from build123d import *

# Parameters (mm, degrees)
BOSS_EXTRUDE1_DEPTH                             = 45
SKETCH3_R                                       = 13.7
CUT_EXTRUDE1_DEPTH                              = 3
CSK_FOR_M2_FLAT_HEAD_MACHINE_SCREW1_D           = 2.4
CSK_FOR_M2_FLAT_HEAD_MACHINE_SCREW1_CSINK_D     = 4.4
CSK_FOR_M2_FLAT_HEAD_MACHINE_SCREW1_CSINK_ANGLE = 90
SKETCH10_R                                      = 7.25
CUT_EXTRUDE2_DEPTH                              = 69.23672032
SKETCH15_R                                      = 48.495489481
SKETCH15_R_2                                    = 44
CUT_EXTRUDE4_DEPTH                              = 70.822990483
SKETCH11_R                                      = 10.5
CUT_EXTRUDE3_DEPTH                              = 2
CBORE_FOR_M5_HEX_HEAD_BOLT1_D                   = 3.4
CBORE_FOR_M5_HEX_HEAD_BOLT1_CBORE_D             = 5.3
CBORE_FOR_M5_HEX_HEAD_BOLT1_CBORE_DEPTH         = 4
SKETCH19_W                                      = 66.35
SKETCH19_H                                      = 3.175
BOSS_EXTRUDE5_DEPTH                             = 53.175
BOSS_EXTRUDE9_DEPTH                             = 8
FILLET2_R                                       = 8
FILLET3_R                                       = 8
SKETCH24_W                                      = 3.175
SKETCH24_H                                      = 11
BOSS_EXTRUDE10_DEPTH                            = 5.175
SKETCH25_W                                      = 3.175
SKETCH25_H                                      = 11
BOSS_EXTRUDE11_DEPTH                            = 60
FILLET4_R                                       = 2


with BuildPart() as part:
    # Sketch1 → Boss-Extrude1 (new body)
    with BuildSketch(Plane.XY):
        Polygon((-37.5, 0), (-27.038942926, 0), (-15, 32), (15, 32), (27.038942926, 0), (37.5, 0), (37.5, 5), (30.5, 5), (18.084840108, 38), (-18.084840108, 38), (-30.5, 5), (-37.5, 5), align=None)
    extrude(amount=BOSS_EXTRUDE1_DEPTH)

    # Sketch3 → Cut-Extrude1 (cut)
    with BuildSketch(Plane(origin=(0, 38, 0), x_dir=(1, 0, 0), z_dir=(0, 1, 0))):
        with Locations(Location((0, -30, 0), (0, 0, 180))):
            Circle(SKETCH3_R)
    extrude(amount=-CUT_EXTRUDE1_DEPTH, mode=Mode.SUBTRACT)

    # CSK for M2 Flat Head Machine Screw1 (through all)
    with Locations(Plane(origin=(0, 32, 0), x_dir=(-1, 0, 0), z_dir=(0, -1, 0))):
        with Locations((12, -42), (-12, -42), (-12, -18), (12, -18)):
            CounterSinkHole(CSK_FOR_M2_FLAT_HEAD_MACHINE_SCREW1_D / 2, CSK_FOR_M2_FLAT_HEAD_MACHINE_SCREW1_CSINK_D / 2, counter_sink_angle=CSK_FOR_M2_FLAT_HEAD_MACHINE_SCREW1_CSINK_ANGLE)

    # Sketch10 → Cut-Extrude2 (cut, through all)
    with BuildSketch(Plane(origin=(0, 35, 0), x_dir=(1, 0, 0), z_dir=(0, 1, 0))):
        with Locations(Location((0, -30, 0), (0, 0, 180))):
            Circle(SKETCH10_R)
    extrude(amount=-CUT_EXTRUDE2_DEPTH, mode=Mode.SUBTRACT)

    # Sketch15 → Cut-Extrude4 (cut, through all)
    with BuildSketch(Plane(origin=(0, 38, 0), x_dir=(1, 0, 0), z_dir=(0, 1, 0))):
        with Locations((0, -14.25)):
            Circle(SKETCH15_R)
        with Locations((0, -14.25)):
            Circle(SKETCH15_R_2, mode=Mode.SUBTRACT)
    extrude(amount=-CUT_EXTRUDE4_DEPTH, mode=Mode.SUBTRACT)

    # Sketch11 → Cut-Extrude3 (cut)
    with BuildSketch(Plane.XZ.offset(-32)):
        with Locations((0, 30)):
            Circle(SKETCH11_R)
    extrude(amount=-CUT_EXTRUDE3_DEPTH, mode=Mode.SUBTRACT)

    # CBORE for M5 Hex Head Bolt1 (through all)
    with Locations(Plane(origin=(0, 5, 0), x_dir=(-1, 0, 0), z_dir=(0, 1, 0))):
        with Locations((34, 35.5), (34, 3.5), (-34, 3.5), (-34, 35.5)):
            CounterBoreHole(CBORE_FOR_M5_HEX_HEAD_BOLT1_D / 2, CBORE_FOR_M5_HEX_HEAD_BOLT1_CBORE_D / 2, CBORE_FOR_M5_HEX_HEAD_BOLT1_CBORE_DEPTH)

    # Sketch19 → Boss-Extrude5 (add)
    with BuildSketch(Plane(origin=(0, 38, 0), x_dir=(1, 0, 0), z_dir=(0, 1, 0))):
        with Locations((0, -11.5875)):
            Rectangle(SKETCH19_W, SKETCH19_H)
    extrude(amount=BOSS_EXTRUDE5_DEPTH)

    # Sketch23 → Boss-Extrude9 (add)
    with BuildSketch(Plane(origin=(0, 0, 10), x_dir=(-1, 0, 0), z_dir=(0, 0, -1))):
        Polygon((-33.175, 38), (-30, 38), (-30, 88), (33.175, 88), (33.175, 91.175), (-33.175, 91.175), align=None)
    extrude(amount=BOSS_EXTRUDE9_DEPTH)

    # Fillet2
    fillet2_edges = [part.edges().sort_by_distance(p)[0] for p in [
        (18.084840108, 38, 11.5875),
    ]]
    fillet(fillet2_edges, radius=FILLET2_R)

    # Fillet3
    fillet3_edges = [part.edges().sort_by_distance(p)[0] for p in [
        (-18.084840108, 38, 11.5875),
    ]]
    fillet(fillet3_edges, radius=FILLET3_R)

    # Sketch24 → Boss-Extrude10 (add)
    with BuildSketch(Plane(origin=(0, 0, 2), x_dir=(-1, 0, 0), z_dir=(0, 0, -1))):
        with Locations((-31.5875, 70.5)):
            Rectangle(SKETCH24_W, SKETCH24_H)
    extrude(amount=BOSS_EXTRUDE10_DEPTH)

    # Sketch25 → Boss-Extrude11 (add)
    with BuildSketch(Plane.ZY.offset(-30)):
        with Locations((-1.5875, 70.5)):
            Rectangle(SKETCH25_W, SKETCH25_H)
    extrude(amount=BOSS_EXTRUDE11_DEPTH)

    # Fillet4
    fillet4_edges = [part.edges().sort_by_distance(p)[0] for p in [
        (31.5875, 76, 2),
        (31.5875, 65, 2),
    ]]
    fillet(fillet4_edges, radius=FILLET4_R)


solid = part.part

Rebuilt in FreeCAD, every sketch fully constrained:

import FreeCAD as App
import Part
import Sketcher

V = App.Vector


def edges_at(feature, points):
    """Names of the edges that pass closest to the given points."""
    edges = feature.Shape.Edges
    near = lambda p: min(range(len(edges)), key=lambda i: edges[i].distToShape(Part.Vertex(*p))[0])
    return sorted({f"Edge{near(p) + 1}" for p in points})

doc = App.newDocument("Part")
body = doc.addObject("PartDesign::Body", "Body")

sketch1 = doc.addObject("Sketcher::SketchObject", "Sketch")
body.addObject(sketch1)
sketch1.AttachmentSupport = (doc.XY_Plane, [""])
sketch1.MapMode = "FlatFace"
sketch1.addGeometry(Part.LineSegment(V(-38, 0, 0), V(-27, 0, 0)), False)
sketch1.addGeometry(Part.LineSegment(V(-27, 0, 0), V(-15, 32, 0)), False)
sketch1.addGeometry(Part.LineSegment(V(-15, 32, 0), V(15, 32, 0)), False)
sketch1.addGeometry(Part.LineSegment(V(15, 32, 0), V(27, 0, 0)), False)
sketch1.addGeometry(Part.LineSegment(V(27, 0, 0), V(38, 0, 0)), False)
sketch1.addGeometry(Part.LineSegment(V(38, 0, 0), V(38, 5, 0)), False)
sketch1.addGeometry(Part.LineSegment(V(38, 5, 0), V(30, 5, 0)), False)
sketch1.addGeometry(Part.LineSegment(V(30, 5, 0), V(18, 38, 0)), False)
sketch1.addGeometry(Part.LineSegment(V(18, 38, 0), V(-18, 38, 0)), False)
sketch1.addGeometry(Part.LineSegment(V(-18, 38, 0), V(-30, 5, 0)), False)
sketch1.addGeometry(Part.LineSegment(V(-30, 5, 0), V(-38, 5, 0)), False)
sketch1.addGeometry(Part.LineSegment(V(-38, 5, 0), V(-38, 0, 0)), False)
sketch1.addConstraint(Sketcher.Constraint("Coincident", 0, 2, 1, 1))
sketch1.addConstraint(Sketcher.Constraint("Coincident", 1, 2, 2, 1))
sketch1.addConstraint(Sketcher.Constraint("Coincident", 2, 2, 3, 1))
sketch1.addConstraint(Sketcher.Constraint("Coincident", 3, 2, 4, 1))
sketch1.addConstraint(Sketcher.Constraint("Coincident", 4, 2, 5, 1))
sketch1.addConstraint(Sketcher.Constraint("Coincident", 5, 2, 6, 1))
sketch1.addConstraint(Sketcher.Constraint("Coincident", 6, 2, 7, 1))
sketch1.addConstraint(Sketcher.Constraint("Coincident", 7, 2, 8, 1))
sketch1.addConstraint(Sketcher.Constraint("Coincident", 8, 2, 9, 1))
sketch1.addConstraint(Sketcher.Constraint("Coincident", 9, 2, 10, 1))
sketch1.addConstraint(Sketcher.Constraint("Coincident", 10, 2, 11, 1))
sketch1.addConstraint(Sketcher.Constraint("Coincident", 11, 2, 0, 1))
sketch1.addConstraint(Sketcher.Constraint("Horizontal", 0))
sketch1.addConstraint(Sketcher.Constraint("Horizontal", 2))
sketch1.addConstraint(Sketcher.Constraint("Horizontal", 4))
sketch1.addConstraint(Sketcher.Constraint("Vertical", 5))
sketch1.addConstraint(Sketcher.Constraint("Horizontal", 6))
sketch1.addConstraint(Sketcher.Constraint("Horizontal", 8))
sketch1.addConstraint(Sketcher.Constraint("Horizontal", 10))
sketch1.addConstraint(Sketcher.Constraint("Vertical", 11))
sketch1.addConstraint(Sketcher.Constraint("Symmetric", 0, 2, 3, 2, -1, 1))
sketch1.addConstraint(Sketcher.Constraint("Symmetric", 6, 2, 9, 2, -2))
sketch1.addConstraint(Sketcher.Constraint("Symmetric", 4, 2, 11, 2, -2))
sketch1.addConstraint(Sketcher.Constraint("Parallel", 3, 7))
sketch1.addConstraint(Sketcher.Constraint("Parallel", 1, 9))
sketch1.addConstraint(Sketcher.Constraint("Equal", 1, 3))
sketch1.addConstraint(Sketcher.Constraint("DistanceX", 2, 1, 2, 2, 30.0))
sketch1.addConstraint(Sketcher.Constraint("DistanceX", 6, 2, 6, 1, 7.0))
sketch1.addConstraint(Sketcher.Constraint("DistanceY", 5, 1, 5, 2, 5.0))
sketch1.addConstraint(Sketcher.Constraint("DistanceY", -1, 1, 1, 2, 32.0))
sketch1.addConstraint(Sketcher.Constraint("DistanceY", -1, 1, 7, 2, 38.0))
sketch1.addConstraint(Sketcher.Constraint("DistanceX", -1, 1, 4, 2, 37.5))
sketch1.addConstraint(Sketcher.Constraint("DistanceX", 8, 2, 8, 1, 36.16968))
pad1 = doc.addObject("PartDesign::Pad", "Pad")
body.addObject(pad1)
pad1.Profile = sketch1
pad1.Length = 45

sketch2 = doc.addObject("Sketcher::SketchObject", "Sketch001")
body.addObject(sketch2)
sketch2.AttachmentSupport = (doc.XZ_Plane, [""])
sketch2.MapMode = "FlatFace"
sketch2.AttachmentOffset = App.Placement(V(0, 0, -38), App.Rotation())
sketch2.addGeometry(Part.Circle(V(0, 30, 0), V(0, 0, 1), 14), False)
sketch2.addConstraint(Sketcher.Constraint("PointOnObject", 0, 3, -2))
sketch2.addConstraint(Sketcher.Constraint("Diameter", 0, 27.4))
sketch2.addConstraint(Sketcher.Constraint("DistanceY", -1, 1, 0, 3, 30.0))
pocket1 = doc.addObject("PartDesign::Pocket", "Pocket")
body.addObject(pocket1)
pocket1.Profile = sketch2
pocket1.Length = 3
pocket1.Reversed = True

sketch3 = doc.addObject("Sketcher::SketchObject", "Sketch002")
body.addObject(sketch3)
sketch3.AttachmentSupport = (doc.XZ_Plane, [""])
sketch3.MapMode = "FlatFace"
sketch3.AttachmentOffset = App.Placement(V(0, 0, -32), App.Rotation())
sketch3.addGeometry(Part.Circle(V(-12, 42, 0), V(0, 0, 1), 1.2), False)
sketch3.addGeometry(Part.Circle(V(12, 42, 0), V(0, 0, 1), 1.2), False)
sketch3.addGeometry(Part.Circle(V(12, 18, 0), V(0, 0, 1), 1.2), False)
sketch3.addGeometry(Part.Circle(V(-12, 18, 0), V(0, 0, 1), 1.2), False)
sketch3.addConstraint(Sketcher.Constraint("Equal", 0, 1))
sketch3.addConstraint(Sketcher.Constraint("Equal", 1, 2))
sketch3.addConstraint(Sketcher.Constraint("Equal", 2, 3))
sketch3.addConstraint(Sketcher.Constraint("Symmetric", 0, 3, 1, 3, -2))
sketch3.addConstraint(Sketcher.Constraint("Symmetric", 2, 3, 3, 3, -2))
sketch3.addConstraint(Sketcher.Constraint("Vertical", 1, 3, 2, 3))
sketch3.addConstraint(Sketcher.Constraint("Diameter", 0, 2.4))
sketch3.addConstraint(Sketcher.Constraint("DistanceX", 0, 3, -1, 1, 12.0))
sketch3.addConstraint(Sketcher.Constraint("DistanceY", -1, 1, 0, 3, 42.0))
sketch3.addConstraint(Sketcher.Constraint("DistanceY", -1, 1, 2, 3, 18.0))
doc.recompute()
hole = doc.addObject("PartDesign::Hole", "Hole")
body.addObject(hole)
hole.Profile = sketch3
hole.ThreadType = "None"
hole.Diameter = 2.4
hole.DepthType = "ThroughAll"
hole.HoleCutType = "Countersink"
hole.HoleCutDiameter = 4.4
hole.HoleCutCountersinkAngle = 90

sketch4 = doc.addObject("Sketcher::SketchObject", "Sketch003")
body.addObject(sketch4)
sketch4.AttachmentSupport = (doc.XZ_Plane, [""])
sketch4.MapMode = "FlatFace"
sketch4.AttachmentOffset = App.Placement(V(0, 0, -35), App.Rotation())
sketch4.addGeometry(Part.Circle(V(0, 30, 0), V(0, 0, 1), 7), False)
sketch4.addConstraint(Sketcher.Constraint("PointOnObject", 0, 3, -2))
sketch4.addConstraint(Sketcher.Constraint("Diameter", 0, 14.5))
sketch4.addConstraint(Sketcher.Constraint("DistanceY", -1, 1, 0, 3, 30.0))
pocket2 = doc.addObject("PartDesign::Pocket", "Pocket001")
body.addObject(pocket2)
pocket2.Profile = sketch4
pocket2.Type = "ThroughAll"
pocket2.Reversed = True

sketch5 = doc.addObject("Sketcher::SketchObject", "Sketch004")
body.addObject(sketch5)
sketch5.AttachmentSupport = (doc.XZ_Plane, [""])
sketch5.MapMode = "FlatFace"
sketch5.AttachmentOffset = App.Placement(V(0, 0, -38), App.Rotation())
sketch5.addGeometry(Part.Circle(V(0, 14, 0), V(0, 0, 1), 48), False)
sketch5.addGeometry(Part.Circle(V(0, 14, 0), V(0, 0, 1), 44), False)
sketch5.addConstraint(Sketcher.Constraint("Coincident", 1, 3, 0, 3))
sketch5.addConstraint(Sketcher.Constraint("PointOnObject", 0, 3, -2))
sketch5.addConstraint(Sketcher.Constraint("Diameter", 1, 88.0))
sketch5.addConstraint(Sketcher.Constraint("Diameter", 0, 96.990979))
sketch5.addConstraint(Sketcher.Constraint("DistanceY", -1, 1, 0, 3, 14.25))
pocket3 = doc.addObject("PartDesign::Pocket", "Pocket002")
body.addObject(pocket3)
pocket3.Profile = sketch5
pocket3.Type = "ThroughAll"
pocket3.Reversed = True

sketch6 = doc.addObject("Sketcher::SketchObject", "Sketch005")
body.addObject(sketch6)
sketch6.AttachmentSupport = (doc.XZ_Plane, [""])
sketch6.MapMode = "FlatFace"
sketch6.AttachmentOffset = App.Placement(V(0, 0, -32), App.Rotation())
sketch6.addGeometry(Part.Circle(V(0, 30, 0), V(0, 0, 1), 10), False)
sketch6.addConstraint(Sketcher.Constraint("PointOnObject", 0, 3, -2))
sketch6.addConstraint(Sketcher.Constraint("Diameter", 0, 21.0))
sketch6.addConstraint(Sketcher.Constraint("DistanceY", -1, 1, 0, 3, 30.0))
pocket4 = doc.addObject("PartDesign::Pocket", "Pocket003")
body.addObject(pocket4)
pocket4.Profile = sketch6
pocket4.Length = 2

sketch7 = doc.addObject("Sketcher::SketchObject", "Sketch006")
body.addObject(sketch7)
sketch7.AttachmentSupport = (doc.XZ_Plane, [""])
sketch7.MapMode = "FlatFace"
sketch7.AttachmentOffset = App.Placement(V(0, 0, -5), App.Rotation())
sketch7.addGeometry(Part.Circle(V(-34, 35.5, 0), V(0, 0, 1), 1.7), False)
sketch7.addGeometry(Part.Circle(V(-34, 3.5, 0), V(0, 0, 1), 1.7), False)
sketch7.addGeometry(Part.Circle(V(34, 3.5, 0), V(0, 0, 1), 1.7), False)
sketch7.addGeometry(Part.Circle(V(34, 35.5, 0), V(0, 0, 1), 1.7), False)
sketch7.addConstraint(Sketcher.Constraint("Equal", 0, 1))
sketch7.addConstraint(Sketcher.Constraint("Equal", 1, 2))
sketch7.addConstraint(Sketcher.Constraint("Equal", 2, 3))
sketch7.addConstraint(Sketcher.Constraint("Symmetric", 1, 3, 2, 3, -2))
sketch7.addConstraint(Sketcher.Constraint("Symmetric", 0, 3, 3, 3, -2))
sketch7.addConstraint(Sketcher.Constraint("Vertical", 0, 3, 1, 3))
sketch7.addConstraint(Sketcher.Constraint("Diameter", 0, 3.4))
sketch7.addConstraint(Sketcher.Constraint("DistanceX", 0, 3, -1, 1, 34.0))
sketch7.addConstraint(Sketcher.Constraint("DistanceY", 1, 3, 0, 3, 32.0))
sketch7.addConstraint(Sketcher.Constraint("DistanceY", -1, 1, 0, 3, 35.5))
doc.recompute()
hole2 = doc.addObject("PartDesign::Hole", "Hole001")
body.addObject(hole2)
hole2.Profile = sketch7
hole2.ThreadType = "None"
hole2.Diameter = 3.4
hole2.DepthType = "ThroughAll"
hole2.HoleCutType = "Counterbore"
hole2.HoleCutDiameter = 5.3
hole2.HoleCutDepth = 4
hole2.Reversed = True

sketch8 = doc.addObject("Sketcher::SketchObject", "Sketch007")
body.addObject(sketch8)
sketch8.AttachmentSupport = (doc.XZ_Plane, [""])
sketch8.MapMode = "FlatFace"
sketch8.AttachmentOffset = App.Placement(V(0, 0, -38), App.Rotation())
sketch8.addGeometry(Part.LineSegment(V(-33.2, 10, 0), V(-33.2, 13.2, 0)), False)
sketch8.addGeometry(Part.LineSegment(V(-33.2, 13.2, 0), V(33.2, 13.2, 0)), False)
sketch8.addGeometry(Part.LineSegment(V(33.2, 13.2, 0), V(33.2, 10, 0)), False)
sketch8.addGeometry(Part.LineSegment(V(33.2, 10, 0), V(-33.2, 10, 0)), False)
sketch8.addConstraint(Sketcher.Constraint("Coincident", 0, 2, 1, 1))
sketch8.addConstraint(Sketcher.Constraint("Coincident", 1, 2, 2, 1))
sketch8.addConstraint(Sketcher.Constraint("Coincident", 2, 2, 3, 1))
sketch8.addConstraint(Sketcher.Constraint("Coincident", 3, 2, 0, 1))
sketch8.addConstraint(Sketcher.Constraint("Vertical", 0))
sketch8.addConstraint(Sketcher.Constraint("Horizontal", 1))
sketch8.addConstraint(Sketcher.Constraint("Vertical", 2))
sketch8.addConstraint(Sketcher.Constraint("Horizontal", 3))
sketch8.addConstraint(Sketcher.Constraint("DistanceY", -1, 1, 2, 2, 10.0))
sketch8.addConstraint(Sketcher.Constraint("DistanceX", 1, 1, 1, 2, 66.35))
sketch8.addConstraint(Sketcher.Constraint("DistanceY", 0, 1, 0, 2, 3.175))
sketch8.addConstraint(Sketcher.Constraint("DistanceX", 0, 2, -1, 1, 33.175))
pad2 = doc.addObject("PartDesign::Pad", "Pad001")
body.addObject(pad2)
pad2.Profile = sketch8
pad2.Length = 53.175
pad2.Reversed = True

sketch9 = doc.addObject("Sketcher::SketchObject", "Sketch008")
body.addObject(sketch9)
sketch9.AttachmentSupport = (doc.XY_Plane, [""])
sketch9.MapMode = "FlatFace"
sketch9.AttachmentOffset = App.Placement(V(0, 0, 10), App.Rotation())
sketch9.addGeometry(Part.LineSegment(V(33.2, 38, 0), V(30, 38, 0)), False)
sketch9.addGeometry(Part.LineSegment(V(30, 38, 0), V(30, 88, 0)), False)
sketch9.addGeometry(Part.LineSegment(V(30, 88, 0), V(-33.2, 88, 0)), False)
sketch9.addGeometry(Part.LineSegment(V(-33.2, 88, 0), V(-33.2, 91.2, 0)), False)
sketch9.addGeometry(Part.LineSegment(V(-33.2, 91.2, 0), V(33.2, 91.2, 0)), False)
sketch9.addGeometry(Part.LineSegment(V(33.2, 91.2, 0), V(33.2, 38, 0)), False)
sketch9.addConstraint(Sketcher.Constraint("Coincident", 0, 2, 1, 1))
sketch9.addConstraint(Sketcher.Constraint("Coincident", 1, 2, 2, 1))
sketch9.addConstraint(Sketcher.Constraint("Coincident", 2, 2, 3, 1))
sketch9.addConstraint(Sketcher.Constraint("Coincident", 3, 2, 4, 1))
sketch9.addConstraint(Sketcher.Constraint("Coincident", 4, 2, 5, 1))
sketch9.addConstraint(Sketcher.Constraint("Coincident", 5, 2, 0, 1))
sketch9.addConstraint(Sketcher.Constraint("Horizontal", 0))
sketch9.addConstraint(Sketcher.Constraint("Vertical", 1))
sketch9.addConstraint(Sketcher.Constraint("Horizontal", 2))
sketch9.addConstraint(Sketcher.Constraint("Vertical", 3))
sketch9.addConstraint(Sketcher.Constraint("Horizontal", 4))
sketch9.addConstraint(Sketcher.Constraint("Vertical", 5))
sketch9.addConstraint(Sketcher.Constraint("Equal", 0, 3))
sketch9.addConstraint(Sketcher.Constraint("DistanceY", 1, 1, 1, 2, 50.0))
sketch9.addConstraint(Sketcher.Constraint("DistanceX", -1, 1, 0, 2, 30.0))
sketch9.addConstraint(Sketcher.Constraint("DistanceY", -1, 1, 0, 2, 38.0))
sketch9.addConstraint(Sketcher.Constraint("DistanceX", 4, 1, 4, 2, 66.35))
sketch9.addConstraint(Sketcher.Constraint("DistanceX", 0, 2, 0, 1, 3.175))
pad3 = doc.addObject("PartDesign::Pad", "Pad002")
body.addObject(pad3)
pad3.Profile = sketch9
pad3.Length = 8
pad3.Reversed = True
doc.recompute()

fillet = doc.addObject("PartDesign::Fillet", "Fillet")
body.addObject(fillet)
fillet.Base = (pad3, edges_at(pad3, [(18.085, 38, 11.588)]))
fillet.Radius = 8
doc.recompute()

fillet2 = doc.addObject("PartDesign::Fillet", "Fillet001")
body.addObject(fillet2)
fillet2.Base = (fillet, edges_at(fillet, [(-18.085, 38, 11.588)]))
fillet2.Radius = 8

sketch10 = doc.addObject("Sketcher::SketchObject", "Sketch009")
body.addObject(sketch10)
sketch10.AttachmentSupport = (doc.XY_Plane, [""])
sketch10.MapMode = "FlatFace"
sketch10.AttachmentOffset = App.Placement(V(0, 0, 2), App.Rotation())
sketch10.addGeometry(Part.LineSegment(V(33.2, 76, 0), V(33.2, 65, 0)), False)
sketch10.addGeometry(Part.LineSegment(V(33.2, 65, 0), V(30, 65, 0)), False)
sketch10.addGeometry(Part.LineSegment(V(30, 65, 0), V(30, 76, 0)), False)
sketch10.addGeometry(Part.LineSegment(V(30, 76, 0), V(33.2, 76, 0)), False)
sketch10.addConstraint(Sketcher.Constraint("Coincident", 0, 2, 1, 1))
sketch10.addConstraint(Sketcher.Constraint("Coincident", 1, 2, 2, 1))
sketch10.addConstraint(Sketcher.Constraint("Coincident", 2, 2, 3, 1))
sketch10.addConstraint(Sketcher.Constraint("Coincident", 3, 2, 0, 1))
sketch10.addConstraint(Sketcher.Constraint("Vertical", 0))
sketch10.addConstraint(Sketcher.Constraint("Horizontal", 1))
sketch10.addConstraint(Sketcher.Constraint("Vertical", 2))
sketch10.addConstraint(Sketcher.Constraint("Horizontal", 3))
sketch10.addConstraint(Sketcher.Constraint("DistanceY", 0, 2, 0, 1, 11.0))
sketch10.addConstraint(Sketcher.Constraint("DistanceY", -1, 1, 0, 2, 65.0))
sketch10.addConstraint(Sketcher.Constraint("DistanceX", -1, 1, 1, 2, 30.0))
sketch10.addConstraint(Sketcher.Constraint("DistanceX", 1, 2, 1, 1, 3.175))
pad4 = doc.addObject("PartDesign::Pad", "Pad003")
body.addObject(pad4)
pad4.Profile = sketch10
pad4.Length = 5.175
pad4.Reversed = True

sketch11 = doc.addObject("Sketcher::SketchObject", "Sketch010")
body.addObject(sketch11)
sketch11.AttachmentSupport = (doc.YZ_Plane, [""])
sketch11.MapMode = "FlatFace"
sketch11.AttachmentOffset = App.Placement(V(0, 0, 30), App.Rotation())
sketch11.addGeometry(Part.LineSegment(V(76, -3.2, 0), V(65, -3.2, 0)), False)
sketch11.addGeometry(Part.LineSegment(V(65, -3.2, 0), V(65, 0, 0)), False)
sketch11.addGeometry(Part.LineSegment(V(65, 0, 0), V(76, 0, 0)), False)
sketch11.addGeometry(Part.LineSegment(V(76, 0, 0), V(76, -3.2, 0)), False)
sketch11.addConstraint(Sketcher.Constraint("Coincident", 0, 2, 1, 1))
sketch11.addConstraint(Sketcher.Constraint("Coincident", 1, 2, 2, 1))
sketch11.addConstraint(Sketcher.Constraint("Coincident", 2, 2, 3, 1))
sketch11.addConstraint(Sketcher.Constraint("Coincident", 3, 2, 0, 1))
sketch11.addConstraint(Sketcher.Constraint("Horizontal", 0))
sketch11.addConstraint(Sketcher.Constraint("Vertical", 1))
sketch11.addConstraint(Sketcher.Constraint("Horizontal", 2))
sketch11.addConstraint(Sketcher.Constraint("Vertical", 3))
sketch11.addConstraint(Sketcher.Constraint("PointOnObject", 1, 2, -1))
sketch11.addConstraint(Sketcher.Constraint("DistanceX", 0, 2, 0, 1, 11.0))
sketch11.addConstraint(Sketcher.Constraint("DistanceX", -1, 1, 0, 2, 65.0))
sketch11.addConstraint(Sketcher.Constraint("DistanceY", 1, 1, 1, 2, 3.175))
pad5 = doc.addObject("PartDesign::Pad", "Pad004")
body.addObject(pad5)
pad5.Profile = sketch11
pad5.Length = 60
pad5.Reversed = True
doc.recompute()

fillet3 = doc.addObject("PartDesign::Fillet", "Fillet002")
body.addObject(fillet3)
fillet3.Base = (pad5, edges_at(pad5, [(31.587, 76, 2), (31.587, 65, 2)]))
fillet3.Radius = 2

doc.recompute()
